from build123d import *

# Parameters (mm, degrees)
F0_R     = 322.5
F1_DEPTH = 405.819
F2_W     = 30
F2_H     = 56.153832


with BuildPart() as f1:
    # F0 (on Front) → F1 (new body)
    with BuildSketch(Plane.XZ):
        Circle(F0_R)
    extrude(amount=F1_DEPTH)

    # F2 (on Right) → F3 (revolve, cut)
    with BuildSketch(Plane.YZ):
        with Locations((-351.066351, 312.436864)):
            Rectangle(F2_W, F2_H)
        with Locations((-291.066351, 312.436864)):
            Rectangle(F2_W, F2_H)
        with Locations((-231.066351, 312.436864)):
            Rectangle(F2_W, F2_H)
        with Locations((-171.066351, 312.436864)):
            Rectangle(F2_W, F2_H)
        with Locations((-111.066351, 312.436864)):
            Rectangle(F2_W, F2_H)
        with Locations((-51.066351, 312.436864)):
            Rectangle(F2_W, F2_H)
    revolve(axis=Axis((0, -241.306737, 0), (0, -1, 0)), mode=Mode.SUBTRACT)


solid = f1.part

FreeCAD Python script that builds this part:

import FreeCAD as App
import Part
import Sketcher


def add_polygon(sketch, points):
    """Adds a closed chain of lines whose ends are joined by coincident constraints."""
    first, n = sketch.GeometryCount, len(points)
    for a, b in zip(points, points[1:] + points[:1]):
        sketch.addGeometry(Part.LineSegment(App.Vector(*a, 0), App.Vector(*b, 0)), False)
    for i in range(n):
        sketch.addConstraint(Sketcher.Constraint("Coincident", first + i, 2, first + (i + 1) % n, 1))

doc = App.newDocument("Part")
body = doc.addObject("PartDesign::Body", "Body")

# Sketch on XZ plane
sketch1 = doc.addObject("Sketcher::SketchObject", "Sketch")
body.addObject(sketch1)
sketch1.AttachmentSupport = (doc.XZ_Plane, [""])
sketch1.MapMode = "FlatFace"
sketch1.addGeometry(Part.Circle(App.Vector(0, 0, 0), App.Vector(0, 0, 1), 322.5), False)
sketch1.addConstraint([
    Sketcher.Constraint("Coincident", 0, 3, -1, 1),
    Sketcher.Constraint("Diameter", 0, 645.0),
])
pad1 = doc.addObject("PartDesign::Pad", "Pad")
body.addObject(pad1)
pad1.Profile = sketch1
pad1.Length = 405.819

# Sketch on YZ plane
sketch2 = doc.addObject("Sketcher::SketchObject", "Sketch001")
body.addObject(sketch2)
sketch2.AttachmentSupport = (doc.YZ_Plane, [""])
sketch2.MapMode = "FlatFace"
add_polygon(sketch2, [(-366.066351, 340.51378), (-366.066351, 284.359948), (-336.066351, 284.359948), (-336.066351, 340.51378)])  # lines 0-3
add_polygon(sketch2, [(-306.066351, 340.51378), (-306.066351, 284.359948), (-276.066351, 284.359948), (-276.066351, 340.51378)])  # lines 4-7
add_polygon(sketch2, [(-246.066351, 340.51378), (-246.066351, 284.359948), (-216.066351, 284.359948), (-216.066351, 340.51378)])  # lines 8-11
add_polygon(sketch2, [(-186.066351, 340.51378), (-186.066351, 284.359948), (-156.066351, 284.359948), (-156.066351, 340.51378)])  # lines 12-15
add_polygon(sketch2, [(-126.066351, 340.51378), (-126.066351, 284.359948), (-96.066351, 284.359948), (-96.066351, 340.51378)])  # lines 16-19
add_polygon(sketch2, [(-66.066351, 340.51378), (-66.066351, 284.359948), (-36.066351, 284.359948), (-36.066351, 340.51378)])  # lines 20-23
sketch2.addConstraint([
    Sketcher.Constraint("Vertical", 0),
    Sketcher.Constraint("Horizontal", 1),
    Sketcher.Constraint("Vertical", 2),
    Sketcher.Constraint("Horizontal", 3),
    Sketcher.Constraint("Vertical", 4),
    Sketcher.Constraint("Horizontal", 5),
    Sketcher.Constraint("Vertical", 6),
    Sketcher.Constraint("Horizontal", 7),
    Sketcher.Constraint("Vertical", 8),
    Sketcher.Constraint("Horizontal", 9),
    Sketcher.Constraint("Vertical", 10),
    Sketcher.Constraint("Horizontal", 11),
    Sketcher.Constraint("Vertical", 12),
    Sketcher.Constraint("Horizontal", 13),
    Sketcher.Constraint("Vertical", 14),
    Sketcher.Constraint("Horizontal", 15),
    Sketcher.Constraint("Vertical", 16),
    Sketcher.Constraint("Horizontal", 17),
    Sketcher.Constraint("Vertical", 18),
    Sketcher.Constraint("Horizontal", 19),
    Sketcher.Constraint("Vertical", 20),
    Sketcher.Constraint("Horizontal", 21),
    Sketcher.Constraint("Vertical", 22),
    Sketcher.Constraint("Horizontal", 23),
    Sketcher.Constraint("Horizontal", 1, 2, 4, 2),
    Sketcher.Constraint("Horizontal", 3, 2, 6, 2),
    Sketcher.Constraint("Horizontal", 5, 2, 8, 2),
    Sketcher.Constraint("Horizontal", 7, 2, 10, 2),
    Sketcher.Constraint("Horizontal", 9, 2, 12, 2),
    Sketcher.Constraint("Horizontal", 11, 2, 14, 2),
    Sketcher.Constraint("Horizontal", 13, 2, 16, 2),
    Sketcher.Constraint("Horizontal", 15, 2, 18, 2),
    Sketcher.Constraint("Horizontal", 17, 2, 20, 2),
    Sketcher.Constraint("Horizontal", 19, 2, 22, 2),
    Sketcher.Constraint("Equal", 3, 5),
    Sketcher.Constraint("Equal", 7, 9),
    Sketcher.Constraint("Equal", 11, 13),
    Sketcher.Constraint("Equal", 15, 17),
    Sketcher.Constraint("Equal", 19, 21),
    Sketcher.Constraint("DistanceX", 1, 1, 1, 2, 30.0),
    Sketcher.Constraint("DistanceX", 1, 2, 4, 2, 30.0),
    Sketcher.Constraint("DistanceX", 5, 2, 8, 2, 30.0),
    Sketcher.Constraint("DistanceX", 9, 2, 12, 2, 30.0),
    Sketcher.Constraint("DistanceX", 13, 2, 16, 2, 30.0),
    Sketcher.Constraint("DistanceX", 17, 2, 20, 2, 30.0),
    Sketcher.Constraint("DistanceY", 0, 2, 0, 1, 56.153832),
    Sketcher.Constraint("DistanceX", 0, 2, -1, 1, 366.066351),
    Sketcher.Constraint("DistanceY", -1, 1, 2, 2, 340.51378),
])
groove = doc.addObject("PartDesign::Groove", "Groove")
body.addObject(groove)
groove.Profile = sketch2
groove.ReferenceAxis = (sketch2, ["H_Axis"])
groove.Angle = 360

doc.recompute()
